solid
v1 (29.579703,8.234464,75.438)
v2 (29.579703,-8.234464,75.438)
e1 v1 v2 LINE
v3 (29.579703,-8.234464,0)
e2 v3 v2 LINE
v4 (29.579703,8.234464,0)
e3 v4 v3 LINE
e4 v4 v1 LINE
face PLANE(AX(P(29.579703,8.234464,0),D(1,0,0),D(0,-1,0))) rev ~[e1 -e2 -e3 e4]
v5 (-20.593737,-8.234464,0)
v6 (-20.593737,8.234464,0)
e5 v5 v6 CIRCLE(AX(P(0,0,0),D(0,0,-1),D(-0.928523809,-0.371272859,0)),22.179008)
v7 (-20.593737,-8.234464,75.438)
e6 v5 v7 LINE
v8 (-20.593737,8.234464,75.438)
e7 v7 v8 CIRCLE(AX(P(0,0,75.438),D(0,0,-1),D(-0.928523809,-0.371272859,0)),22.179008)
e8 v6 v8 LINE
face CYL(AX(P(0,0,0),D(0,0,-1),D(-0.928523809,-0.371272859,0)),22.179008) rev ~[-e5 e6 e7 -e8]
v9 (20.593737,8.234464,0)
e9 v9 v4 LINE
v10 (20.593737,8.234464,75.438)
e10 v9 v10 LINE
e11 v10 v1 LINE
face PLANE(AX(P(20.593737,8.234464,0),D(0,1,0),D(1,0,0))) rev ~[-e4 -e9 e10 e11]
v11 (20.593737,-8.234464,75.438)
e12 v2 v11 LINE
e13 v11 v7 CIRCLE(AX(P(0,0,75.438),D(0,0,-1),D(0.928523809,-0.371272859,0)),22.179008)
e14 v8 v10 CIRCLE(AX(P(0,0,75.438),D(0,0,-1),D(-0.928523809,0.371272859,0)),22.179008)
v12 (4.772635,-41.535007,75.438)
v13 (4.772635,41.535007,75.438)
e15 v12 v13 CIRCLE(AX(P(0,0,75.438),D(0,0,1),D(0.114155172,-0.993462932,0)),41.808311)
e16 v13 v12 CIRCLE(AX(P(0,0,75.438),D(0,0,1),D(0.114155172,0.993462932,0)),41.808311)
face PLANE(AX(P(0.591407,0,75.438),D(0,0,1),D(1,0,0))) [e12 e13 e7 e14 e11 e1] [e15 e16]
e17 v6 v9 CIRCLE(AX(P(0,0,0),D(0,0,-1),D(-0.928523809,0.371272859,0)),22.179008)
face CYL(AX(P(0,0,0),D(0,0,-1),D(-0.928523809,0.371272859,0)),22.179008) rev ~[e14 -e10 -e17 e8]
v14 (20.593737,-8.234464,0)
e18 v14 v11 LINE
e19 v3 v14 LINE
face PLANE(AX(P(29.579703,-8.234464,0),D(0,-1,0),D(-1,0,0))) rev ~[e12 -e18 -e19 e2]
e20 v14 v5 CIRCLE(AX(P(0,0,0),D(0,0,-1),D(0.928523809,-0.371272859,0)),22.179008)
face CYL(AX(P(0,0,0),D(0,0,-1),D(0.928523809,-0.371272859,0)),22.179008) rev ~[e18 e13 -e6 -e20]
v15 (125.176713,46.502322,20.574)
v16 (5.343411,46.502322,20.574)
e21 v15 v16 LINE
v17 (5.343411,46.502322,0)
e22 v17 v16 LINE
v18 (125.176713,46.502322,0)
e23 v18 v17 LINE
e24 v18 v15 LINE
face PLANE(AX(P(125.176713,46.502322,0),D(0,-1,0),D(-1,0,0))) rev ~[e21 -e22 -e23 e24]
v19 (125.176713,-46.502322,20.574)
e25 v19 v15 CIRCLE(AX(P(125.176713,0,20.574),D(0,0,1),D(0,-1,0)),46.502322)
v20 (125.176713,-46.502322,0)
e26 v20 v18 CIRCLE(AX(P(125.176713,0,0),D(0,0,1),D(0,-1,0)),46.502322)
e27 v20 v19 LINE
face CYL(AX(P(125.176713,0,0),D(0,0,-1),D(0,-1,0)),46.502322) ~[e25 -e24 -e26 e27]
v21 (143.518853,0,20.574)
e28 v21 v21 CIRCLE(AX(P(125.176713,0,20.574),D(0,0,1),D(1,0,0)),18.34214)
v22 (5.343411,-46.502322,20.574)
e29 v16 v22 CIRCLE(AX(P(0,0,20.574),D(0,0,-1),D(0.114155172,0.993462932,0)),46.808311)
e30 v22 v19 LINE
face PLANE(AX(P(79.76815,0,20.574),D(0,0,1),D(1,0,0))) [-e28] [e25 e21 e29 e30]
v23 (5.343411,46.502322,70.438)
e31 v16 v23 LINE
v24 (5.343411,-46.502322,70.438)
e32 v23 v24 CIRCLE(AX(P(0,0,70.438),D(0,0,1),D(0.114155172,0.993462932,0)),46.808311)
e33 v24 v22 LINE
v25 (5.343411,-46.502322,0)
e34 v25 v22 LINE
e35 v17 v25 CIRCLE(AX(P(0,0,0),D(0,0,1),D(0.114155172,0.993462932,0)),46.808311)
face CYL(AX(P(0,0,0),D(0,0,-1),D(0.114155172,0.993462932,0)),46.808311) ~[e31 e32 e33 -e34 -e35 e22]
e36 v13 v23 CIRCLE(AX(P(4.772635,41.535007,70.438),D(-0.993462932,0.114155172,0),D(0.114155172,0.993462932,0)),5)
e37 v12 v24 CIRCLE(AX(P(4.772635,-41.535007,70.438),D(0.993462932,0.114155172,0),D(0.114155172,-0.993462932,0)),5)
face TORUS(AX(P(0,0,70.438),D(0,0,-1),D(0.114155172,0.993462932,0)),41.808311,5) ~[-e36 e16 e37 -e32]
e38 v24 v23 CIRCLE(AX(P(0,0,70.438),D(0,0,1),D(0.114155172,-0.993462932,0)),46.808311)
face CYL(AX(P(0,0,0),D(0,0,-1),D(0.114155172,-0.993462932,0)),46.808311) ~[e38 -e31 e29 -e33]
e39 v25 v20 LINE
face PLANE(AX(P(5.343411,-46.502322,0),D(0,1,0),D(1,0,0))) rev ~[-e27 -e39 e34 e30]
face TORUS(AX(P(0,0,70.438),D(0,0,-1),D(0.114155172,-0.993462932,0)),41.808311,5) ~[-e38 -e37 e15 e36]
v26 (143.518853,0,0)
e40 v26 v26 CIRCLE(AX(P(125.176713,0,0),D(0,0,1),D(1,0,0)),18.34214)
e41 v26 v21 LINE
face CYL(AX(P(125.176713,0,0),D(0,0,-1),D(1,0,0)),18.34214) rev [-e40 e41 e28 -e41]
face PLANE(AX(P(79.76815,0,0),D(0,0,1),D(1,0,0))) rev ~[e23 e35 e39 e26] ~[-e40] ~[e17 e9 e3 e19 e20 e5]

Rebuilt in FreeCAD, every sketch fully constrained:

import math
import FreeCAD as App
import Part
import Sketcher

V = App.Vector


def edges_at(feature, points):
    """Names of the edges that pass closest to the given points."""
    edges = feature.Shape.Edges
    near = lambda p: min(range(len(edges)), key=lambda i: edges[i].distToShape(Part.Vertex(*p))[0])
    return sorted({f"Edge{near(p) + 1}" for p in points})

doc = App.newDocument("Part")
body = doc.addObject("PartDesign::Body", "Body")

sketch1 = body.newObject("Sketcher::SketchObject", "Sketch")
sketch1.AttachmentSupport = (doc.getObject("XY_Plane"), [""])
sketch1.MapMode = "FlatFace"
sketch1.addGeometry([
    Part.ArcOfCircle(Part.Circle(V(0, 0, 0), V(0, 0, 1), 47), math.radians(-83), math.radians(83)),
    Part.ArcOfCircle(Part.Circle(V(0, 0, 0), V(0, 0, 1), 47), math.radians(83), math.radians(277)),
    Part.ArcOfCircle(Part.Circle(V(0, 0, 0), V(0, 0, 1), 22), math.radians(-158), math.radians(-22)),
    Part.ArcOfCircle(Part.Circle(V(0, 0, 0), V(0, 0, 1), 22), math.radians(158), math.radians(202)),
    Part.ArcOfCircle(Part.Circle(V(0, 0, 0), V(0, 0, 1), 22), math.radians(22), math.radians(158)),
    Part.LineSegment(V(21, 8, 0), V(30, 8, 0)),
    Part.LineSegment(V(30, 8, 0), V(30, -8, 0)),
    Part.LineSegment(V(30, -8, 0), V(21, -8, 0)),
], False)
sketch1.addConstraint([
    Sketcher.Constraint("Tangent", 0, 1, 1, 2),
    Sketcher.Constraint("Coincident", 1, 1, 0, 2),
    Sketcher.Constraint("Tangent", 2, 1, 3, 2),
    Sketcher.Constraint("Tangent", 3, 1, 4, 2),
    Sketcher.Constraint("Coincident", 4, 1, 5, 1),
    Sketcher.Constraint("Coincident", 5, 2, 6, 1),
    Sketcher.Constraint("Coincident", 6, 2, 7, 1),
    Sketcher.Constraint("Coincident", 7, 2, 2, 2),
    Sketcher.Constraint("Horizontal", 5),
    Sketcher.Constraint("Vertical", 6),
    Sketcher.Constraint("Horizontal", 7),
    Sketcher.Constraint("Coincident", 0, 3, -1, 1),
    Sketcher.Constraint("Coincident", 2, 3, -1, 1),
    Sketcher.Constraint("Coincident", 4, 3, -1, 1),
    Sketcher.Constraint("Horizontal", 3, 1, 4, 1),
    Sketcher.Constraint("Horizontal", 2, 1, 6, 2),
    Sketcher.Constraint("Vertical", 0, 1, 1, 1),
    Sketcher.Constraint("Vertical", 2, 1, 3, 1),
    Sketcher.Constraint("Radius", 0, 46.808311),
    Sketcher.Constraint("Radius", 2, 22.179008),
    Sketcher.Constraint("DistanceX", 5, 1, 5, 2, 8.985966),
    Sketcher.Constraint("DistanceY", 6, 2, 6, 1, 16.468927),
    Sketcher.Constraint("DistanceX", -1, 1, 0, 1, 5.343411),
])
pad1 = body.newObject("PartDesign::Pad", "Pad")
pad1.Profile = sketch1
pad1.Length = 75.438

sketch2 = body.newObject("Sketcher::SketchObject", "Sketch001")
sketch2.AttachmentSupport = (doc.getObject("XY_Plane"), [""])
sketch2.MapMode = "FlatFace"
sketch2.addGeometry([
    Part.ArcOfCircle(Part.Circle(V(0, 0, 0), V(0, 0, 1), 47), math.radians(-83), math.radians(83)),
    Part.LineSegment(V(5, -47, 0), V(125, -47, 0)),
    Part.ArcOfCircle(Part.Circle(V(125, 0, 0), V(0, 0, 1), 47), math.radians(-90), math.radians(90)),
    Part.LineSegment(V(125, 47, 0), V(5, 47, 0)),
    Part.Circle(V(125, 0, 0), V(0, 0, 1), 18),
], False)
sketch2.addConstraint([
    Sketcher.Constraint("Coincident", 0, 1, 1, 1),
    Sketcher.Constraint("Tangent", 1, 2, 2, 1),
    Sketcher.Constraint("Tangent", 2, 2, 3, 1),
    Sketcher.Constraint("Coincident", 3, 2, 0, 2),
    Sketcher.Constraint("Horizontal", 1),
    Sketcher.Constraint("Horizontal", 3),
    Sketcher.Constraint("Coincident", 0, 3, -1, 1),
    Sketcher.Constraint("Coincident", 4, 3, 2, 3),
    Sketcher.Constraint("PointOnObject", 2, 3, -1),
    Sketcher.Constraint("Diameter", 4, 36.68428),
    Sketcher.Constraint("Radius", 0, 46.808311),
    Sketcher.Constraint("Radius", 2, 46.502322),
    Sketcher.Constraint("DistanceX", 1, 1, 1, 2, 119.833302),
])
pad2 = body.newObject("PartDesign::Pad", "Pad001")
pad2.Profile = sketch2
pad2.Length = 20.574

sketch3 = body.newObject("Sketcher::SketchObject", "Sketch002")
sketch3.AttachmentSupport = (doc.getObject("XY_Plane"), [""])
sketch3.MapMode = "FlatFace"
sketch3.addGeometry([
    Part.ArcOfCircle(Part.Circle(V(0, 0, 0), V(0, 0, 1), 47), math.radians(-83), math.radians(83)),
    Part.ArcOfCircle(Part.Circle(V(0, 0, 0), V(0, 0, 1), 47), math.radians(83), math.radians(277)),
    Part.Circle(V(0, 0, 0), V(0, 0, 1), 42),
], False)
sketch3.addConstraint([
    Sketcher.Constraint("Tangent", 0, 1, 1, 2),
    Sketcher.Constraint("Coincident", 1, 1, 0, 2),
    Sketcher.Constraint("Coincident", 0, 3, -1, 1),
    Sketcher.Constraint("Coincident", 2, 3, -1, 1),
    Sketcher.Constraint("Vertical", 0, 1, 1, 1),
    Sketcher.Constraint("Radius", 0, 46.808311),
    Sketcher.Constraint("Diameter", 2, 83.485844),
    Sketcher.Constraint("DistanceX", -1, 1, 0, 1, 5.343411),
])
pad3 = body.newObject("PartDesign::Pad", "Pad002")
pad3.Profile = sketch3
pad3.Length = 73
doc.recompute()

fillet = body.newObject("PartDesign::Fillet", "Fillet")
fillet.Base = (pad3, edges_at(pad3, [(-46.808, 0, 75.438)]))
fillet.Radius = 5

doc.recompute()
